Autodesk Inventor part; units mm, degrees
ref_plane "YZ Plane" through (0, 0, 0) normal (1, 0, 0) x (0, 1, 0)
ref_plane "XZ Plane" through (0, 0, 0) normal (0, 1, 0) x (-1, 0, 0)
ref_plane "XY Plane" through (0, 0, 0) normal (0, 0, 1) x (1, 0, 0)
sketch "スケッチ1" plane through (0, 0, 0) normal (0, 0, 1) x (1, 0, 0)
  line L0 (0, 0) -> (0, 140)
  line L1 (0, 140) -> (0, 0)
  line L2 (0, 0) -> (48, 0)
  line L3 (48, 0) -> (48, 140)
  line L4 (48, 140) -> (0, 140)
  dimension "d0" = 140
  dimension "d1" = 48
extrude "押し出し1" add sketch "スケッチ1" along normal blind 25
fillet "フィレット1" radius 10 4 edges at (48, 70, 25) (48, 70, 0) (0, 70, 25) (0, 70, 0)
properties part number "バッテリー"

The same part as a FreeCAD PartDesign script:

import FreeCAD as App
import Part
import Sketcher
from FreeCAD import Vector


def edges_at(feature, points):
    """Names of the edges that pass closest to the given points."""
    edges = feature.Shape.Edges
    near = lambda p: min(range(len(edges)), key=lambda i: edges[i].distToShape(Part.Vertex(*p))[0])
    return sorted({f"Edge{near(p) + 1}" for p in points})

doc = App.newDocument("Part")
body = doc.addObject("PartDesign::Body", "Body")

# Sketch on XY plane
sketch1 = body.newObject("Sketcher::SketchObject", "Sketch")
sketch1.AttachmentSupport = (doc.getObject("XY_Plane"), [""])
sketch1.MapMode = "FlatFace"
sketch1.addGeometry([
    Part.LineSegment(Vector(0, 140, 0), Vector(0, 0, 0)),
    Part.LineSegment(Vector(0, 0, 0), Vector(48, 0, 0)),
    Part.LineSegment(Vector(48, 0, 0), Vector(48, 140, 0)),
    Part.LineSegment(Vector(48, 140, 0), Vector(0, 140, 0)),
], False)
sketch1.addConstraint([
    Sketcher.Constraint("Coincident", 0, 2, 1, 1),
    Sketcher.Constraint("Coincident", 1, 2, 2, 1),
    Sketcher.Constraint("Coincident", 2, 2, 3, 1),
    Sketcher.Constraint("Coincident", 3, 2, 0, 1),
    Sketcher.Constraint("Vertical", 0),
    Sketcher.Constraint("Horizontal", 1),
    Sketcher.Constraint("Vertical", 2),
    Sketcher.Constraint("Horizontal", 3),
    Sketcher.Constraint("Coincident", 0, 2, -1, 1),
    Sketcher.Constraint("DistanceX", 1, 1, 1, 2, 48.0),
    Sketcher.Constraint("DistanceY", 0, 2, 0, 1, 140.0),
])
pad1 = body.newObject("PartDesign::Pad", "Pad")
pad1.Profile = sketch1
pad1.Length = 25
doc.recompute()

fillet = body.newObject("PartDesign::Fillet", "Fillet")
fillet.Base = (pad1, edges_at(pad1, [
    (48, 70, 25),
    (48, 70, 0),
    (0, 70, 25),
    (0, 70, 0),
]))
fillet.Radius = 10

doc.recompute()
